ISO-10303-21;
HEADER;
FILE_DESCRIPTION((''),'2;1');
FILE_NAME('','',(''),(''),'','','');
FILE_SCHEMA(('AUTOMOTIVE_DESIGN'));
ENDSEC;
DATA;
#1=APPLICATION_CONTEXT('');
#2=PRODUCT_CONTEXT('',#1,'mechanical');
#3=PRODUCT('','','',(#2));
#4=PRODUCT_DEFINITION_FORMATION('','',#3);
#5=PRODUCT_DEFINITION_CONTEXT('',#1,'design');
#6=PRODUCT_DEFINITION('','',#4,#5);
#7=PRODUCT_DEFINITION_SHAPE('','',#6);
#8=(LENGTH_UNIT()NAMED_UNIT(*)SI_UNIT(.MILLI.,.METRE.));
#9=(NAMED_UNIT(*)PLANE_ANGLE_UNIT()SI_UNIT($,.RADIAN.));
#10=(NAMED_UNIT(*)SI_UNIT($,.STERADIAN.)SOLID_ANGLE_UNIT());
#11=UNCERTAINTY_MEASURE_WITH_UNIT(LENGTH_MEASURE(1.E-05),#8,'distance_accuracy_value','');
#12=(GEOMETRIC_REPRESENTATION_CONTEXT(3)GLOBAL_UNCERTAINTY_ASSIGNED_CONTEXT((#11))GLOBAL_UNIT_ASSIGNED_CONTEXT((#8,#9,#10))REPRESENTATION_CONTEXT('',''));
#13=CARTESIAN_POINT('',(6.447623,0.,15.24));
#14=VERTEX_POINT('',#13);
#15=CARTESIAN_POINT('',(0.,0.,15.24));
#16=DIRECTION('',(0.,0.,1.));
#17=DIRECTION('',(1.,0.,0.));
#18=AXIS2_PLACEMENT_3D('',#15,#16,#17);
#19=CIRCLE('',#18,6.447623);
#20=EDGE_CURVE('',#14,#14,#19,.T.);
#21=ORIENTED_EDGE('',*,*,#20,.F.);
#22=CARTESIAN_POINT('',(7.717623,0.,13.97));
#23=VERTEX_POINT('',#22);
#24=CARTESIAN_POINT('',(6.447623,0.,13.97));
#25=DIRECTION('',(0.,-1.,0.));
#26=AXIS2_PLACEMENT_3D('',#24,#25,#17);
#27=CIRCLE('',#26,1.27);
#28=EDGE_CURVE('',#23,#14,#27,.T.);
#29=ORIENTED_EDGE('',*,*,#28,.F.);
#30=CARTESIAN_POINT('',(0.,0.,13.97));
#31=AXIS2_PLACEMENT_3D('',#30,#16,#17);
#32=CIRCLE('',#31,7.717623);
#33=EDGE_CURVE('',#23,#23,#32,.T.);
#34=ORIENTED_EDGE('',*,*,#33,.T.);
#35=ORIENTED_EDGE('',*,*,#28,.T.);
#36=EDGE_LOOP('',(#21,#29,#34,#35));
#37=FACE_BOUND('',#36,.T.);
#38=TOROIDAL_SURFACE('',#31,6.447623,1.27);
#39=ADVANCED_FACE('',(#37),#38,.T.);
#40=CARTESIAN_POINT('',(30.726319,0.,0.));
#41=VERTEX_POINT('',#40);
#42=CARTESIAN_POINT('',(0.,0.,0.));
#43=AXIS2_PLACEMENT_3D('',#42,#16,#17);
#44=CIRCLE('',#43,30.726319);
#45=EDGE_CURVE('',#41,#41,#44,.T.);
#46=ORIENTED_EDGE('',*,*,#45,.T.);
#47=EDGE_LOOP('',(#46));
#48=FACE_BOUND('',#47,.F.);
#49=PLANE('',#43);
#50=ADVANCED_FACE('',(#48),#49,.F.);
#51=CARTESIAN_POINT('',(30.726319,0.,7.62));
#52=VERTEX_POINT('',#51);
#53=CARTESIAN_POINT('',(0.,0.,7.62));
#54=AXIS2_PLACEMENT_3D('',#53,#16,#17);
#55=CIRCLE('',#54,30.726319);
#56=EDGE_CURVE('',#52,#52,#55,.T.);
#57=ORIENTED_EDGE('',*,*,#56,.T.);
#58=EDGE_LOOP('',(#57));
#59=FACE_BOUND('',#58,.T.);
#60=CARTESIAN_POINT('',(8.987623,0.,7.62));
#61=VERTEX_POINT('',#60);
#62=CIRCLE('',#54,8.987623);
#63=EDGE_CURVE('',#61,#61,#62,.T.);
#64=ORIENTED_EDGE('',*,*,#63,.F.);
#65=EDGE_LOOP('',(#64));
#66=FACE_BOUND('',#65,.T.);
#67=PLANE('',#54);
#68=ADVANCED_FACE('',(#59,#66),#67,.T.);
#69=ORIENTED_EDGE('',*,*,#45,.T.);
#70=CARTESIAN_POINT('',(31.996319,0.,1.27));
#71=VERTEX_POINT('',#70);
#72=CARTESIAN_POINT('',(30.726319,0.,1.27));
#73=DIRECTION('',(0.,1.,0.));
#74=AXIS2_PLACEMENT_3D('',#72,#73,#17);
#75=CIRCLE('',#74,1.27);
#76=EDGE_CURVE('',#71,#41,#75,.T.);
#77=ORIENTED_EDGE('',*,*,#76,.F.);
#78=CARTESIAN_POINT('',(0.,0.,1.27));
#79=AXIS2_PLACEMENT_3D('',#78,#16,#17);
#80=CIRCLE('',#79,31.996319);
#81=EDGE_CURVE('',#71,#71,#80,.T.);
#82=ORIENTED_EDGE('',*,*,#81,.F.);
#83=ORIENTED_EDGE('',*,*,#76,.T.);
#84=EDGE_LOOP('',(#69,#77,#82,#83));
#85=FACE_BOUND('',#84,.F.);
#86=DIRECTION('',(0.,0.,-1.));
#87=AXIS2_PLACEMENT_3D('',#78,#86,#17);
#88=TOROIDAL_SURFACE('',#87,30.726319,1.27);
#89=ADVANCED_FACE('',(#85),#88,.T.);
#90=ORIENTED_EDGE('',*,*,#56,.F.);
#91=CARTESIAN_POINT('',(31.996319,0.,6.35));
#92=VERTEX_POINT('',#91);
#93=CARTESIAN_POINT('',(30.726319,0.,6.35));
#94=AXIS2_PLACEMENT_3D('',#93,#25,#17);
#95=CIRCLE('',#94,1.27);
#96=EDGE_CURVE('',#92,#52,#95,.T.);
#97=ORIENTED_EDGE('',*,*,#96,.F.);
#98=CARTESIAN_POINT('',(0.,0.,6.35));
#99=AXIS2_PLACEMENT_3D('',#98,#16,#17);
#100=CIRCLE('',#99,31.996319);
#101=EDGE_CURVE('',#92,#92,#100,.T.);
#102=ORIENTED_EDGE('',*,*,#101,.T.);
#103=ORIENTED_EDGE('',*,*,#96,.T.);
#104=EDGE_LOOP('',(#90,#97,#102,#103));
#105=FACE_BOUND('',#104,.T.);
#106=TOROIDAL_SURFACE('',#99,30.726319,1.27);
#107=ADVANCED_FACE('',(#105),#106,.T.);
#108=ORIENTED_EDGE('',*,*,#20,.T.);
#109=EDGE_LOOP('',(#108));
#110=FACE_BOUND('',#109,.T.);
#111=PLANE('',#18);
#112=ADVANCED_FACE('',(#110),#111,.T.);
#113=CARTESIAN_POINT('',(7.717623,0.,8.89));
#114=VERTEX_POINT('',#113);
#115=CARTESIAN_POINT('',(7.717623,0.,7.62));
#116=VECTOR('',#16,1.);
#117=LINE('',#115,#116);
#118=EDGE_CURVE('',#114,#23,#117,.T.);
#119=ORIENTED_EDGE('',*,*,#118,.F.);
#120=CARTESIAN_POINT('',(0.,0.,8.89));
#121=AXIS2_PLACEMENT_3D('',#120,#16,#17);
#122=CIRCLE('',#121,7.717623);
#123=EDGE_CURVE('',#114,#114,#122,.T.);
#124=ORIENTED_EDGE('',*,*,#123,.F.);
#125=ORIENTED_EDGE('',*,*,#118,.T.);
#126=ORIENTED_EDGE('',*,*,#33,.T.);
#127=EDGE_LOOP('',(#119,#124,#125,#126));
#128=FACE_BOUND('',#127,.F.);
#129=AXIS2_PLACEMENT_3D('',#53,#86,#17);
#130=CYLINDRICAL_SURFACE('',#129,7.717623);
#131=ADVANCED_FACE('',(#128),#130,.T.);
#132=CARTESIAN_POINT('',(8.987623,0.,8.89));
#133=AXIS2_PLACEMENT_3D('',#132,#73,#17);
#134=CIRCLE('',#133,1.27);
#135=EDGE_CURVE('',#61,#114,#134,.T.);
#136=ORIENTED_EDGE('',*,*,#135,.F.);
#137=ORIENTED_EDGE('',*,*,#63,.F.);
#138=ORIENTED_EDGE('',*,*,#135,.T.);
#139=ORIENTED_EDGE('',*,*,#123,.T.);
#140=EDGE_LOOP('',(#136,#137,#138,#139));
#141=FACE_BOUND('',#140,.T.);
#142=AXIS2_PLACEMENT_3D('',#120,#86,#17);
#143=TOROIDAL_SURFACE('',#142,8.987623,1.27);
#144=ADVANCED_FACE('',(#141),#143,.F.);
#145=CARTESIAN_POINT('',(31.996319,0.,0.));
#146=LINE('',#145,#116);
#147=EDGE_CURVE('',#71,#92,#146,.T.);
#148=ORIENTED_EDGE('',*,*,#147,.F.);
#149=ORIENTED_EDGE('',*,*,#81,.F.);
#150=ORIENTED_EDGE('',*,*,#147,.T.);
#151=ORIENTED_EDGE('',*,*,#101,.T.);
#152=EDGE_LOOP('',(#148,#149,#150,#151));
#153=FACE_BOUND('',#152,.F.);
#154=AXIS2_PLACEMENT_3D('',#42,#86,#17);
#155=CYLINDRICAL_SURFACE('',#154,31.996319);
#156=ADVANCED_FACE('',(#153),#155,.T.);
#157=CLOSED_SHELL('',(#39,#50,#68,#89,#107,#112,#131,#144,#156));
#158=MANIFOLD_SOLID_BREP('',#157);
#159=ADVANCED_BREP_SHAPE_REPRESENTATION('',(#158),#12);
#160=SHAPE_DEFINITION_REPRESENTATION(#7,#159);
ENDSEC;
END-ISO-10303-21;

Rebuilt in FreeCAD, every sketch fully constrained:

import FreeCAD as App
import Part
import Sketcher
from FreeCAD import Vector
Q = App.Units.Quantity


def edges_at(feature, points):
    """Names of the edges that pass closest to the given points."""
    edges = feature.Shape.Edges
    near = lambda p: min(range(len(edges)), key=lambda i: edges[i].distToShape(Part.Vertex(*p))[0])
    return sorted({f"Edge{near(p) + 1}" for p in points})

doc = App.newDocument("Part")
body = doc.addObject("PartDesign::Body", "Body")

# Sketch on XY plane
sketch1 = doc.addObject("Sketcher::SketchObject", "Sketch")
body.addObject(sketch1)
sketch1.AttachmentSupport = (doc.XY_Plane, [""])
sketch1.MapMode = "FlatFace"
sketch1.addGeometry(Part.Circle(Vector(0, 0, 0), Vector(0, 0, 1), 32), False)
sketch1.addConstraint([
    Sketcher.Constraint("Coincident", 0, 3, -1, 1),
    Sketcher.Constraint("Diameter", 0, 63.992638),
])
pad1 = doc.addObject("PartDesign::Pad", "Pad")
body.addObject(pad1)
pad1.Profile = sketch1
pad1.Length = Q("0.3 in")

# Sketch on XY plane
sketch2 = doc.addObject("Sketcher::SketchObject", "Sketch001")
body.addObject(sketch2)
sketch2.AttachmentSupport = (doc.XY_Plane, [""])
sketch2.MapMode = "FlatFace"
sketch2.AttachmentOffset = App.Placement(Vector(0, 0, 0.3 * 25.4), App.Rotation())
sketch2.addGeometry(Part.Circle(Vector(0, 0, 0), Vector(0, 0, 1), 8), False)
sketch2.addConstraint([
    Sketcher.Constraint("Coincident", 0, 3, -1, 1),
    Sketcher.Constraint("Diameter", 0, 15.435246),
])
pad2 = doc.addObject("PartDesign::Pad", "Pad001")
body.addObject(pad2)
pad2.Profile = sketch2
pad2.Length = Q("0.3 in")
doc.recompute()

fillet = doc.addObject("PartDesign::Fillet", "Fillet")
body.addObject(fillet)
fillet.Base = (pad2, edges_at(pad2, [
    (-7.718, 0, 15.24),
    (-31.996, 0, 7.62),
    (-7.718, 0, 7.62),
    (-31.996, 0, 0),
]))
fillet.Radius = Q("0.05 in")

doc.recompute()
